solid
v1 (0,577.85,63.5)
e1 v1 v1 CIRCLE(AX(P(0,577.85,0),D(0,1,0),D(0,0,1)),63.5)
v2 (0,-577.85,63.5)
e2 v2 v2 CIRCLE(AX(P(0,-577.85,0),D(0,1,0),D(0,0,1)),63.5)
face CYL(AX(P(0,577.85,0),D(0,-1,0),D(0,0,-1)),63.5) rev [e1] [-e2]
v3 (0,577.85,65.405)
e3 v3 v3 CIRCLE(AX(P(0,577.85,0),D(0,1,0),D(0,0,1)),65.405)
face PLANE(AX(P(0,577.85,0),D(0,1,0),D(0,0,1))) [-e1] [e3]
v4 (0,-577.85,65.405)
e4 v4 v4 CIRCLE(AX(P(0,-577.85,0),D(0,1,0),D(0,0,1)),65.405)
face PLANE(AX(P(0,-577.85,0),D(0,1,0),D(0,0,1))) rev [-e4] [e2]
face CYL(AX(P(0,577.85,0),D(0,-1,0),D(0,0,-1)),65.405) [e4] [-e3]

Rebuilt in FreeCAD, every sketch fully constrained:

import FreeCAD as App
import Part
import Sketcher

V = App.Vector
Q = App.Units.Quantity

doc = App.newDocument("Part")
body = doc.addObject("PartDesign::Body", "Body")

# Sketch on XZ plane
sketch1 = doc.addObject("Sketcher::SketchObject", "Sketch")
body.addObject(sketch1)
sketch1.AttachmentSupport = (doc.XZ_Plane, [""])
sketch1.MapMode = "FlatFace"
sketch1.addGeometry(Part.Circle(V(0, 0, 0), V(0, 0, 1), 65.405), False)
sketch1.addGeometry(Part.Circle(V(0, 0, 0), V(0, 0, 1), 63.5), False)
sketch1.addConstraint(Sketcher.Constraint("Coincident", 0, 3, -1, 1))
sketch1.addConstraint(Sketcher.Constraint("Coincident", 1, 3, -1, 1))
sketch1.addConstraint(Sketcher.Constraint("Diameter", 1, Q("5 in")))
sketch1.addConstraint(Sketcher.Constraint("Diameter", 0, Q("5.15 in")))
pad1 = doc.addObject("PartDesign::Pad", "Pad")
body.addObject(pad1)
pad1.Profile = sketch1
pad1.Length = Q("45.5 in")
pad1.Midplane = True

doc.recompute()
